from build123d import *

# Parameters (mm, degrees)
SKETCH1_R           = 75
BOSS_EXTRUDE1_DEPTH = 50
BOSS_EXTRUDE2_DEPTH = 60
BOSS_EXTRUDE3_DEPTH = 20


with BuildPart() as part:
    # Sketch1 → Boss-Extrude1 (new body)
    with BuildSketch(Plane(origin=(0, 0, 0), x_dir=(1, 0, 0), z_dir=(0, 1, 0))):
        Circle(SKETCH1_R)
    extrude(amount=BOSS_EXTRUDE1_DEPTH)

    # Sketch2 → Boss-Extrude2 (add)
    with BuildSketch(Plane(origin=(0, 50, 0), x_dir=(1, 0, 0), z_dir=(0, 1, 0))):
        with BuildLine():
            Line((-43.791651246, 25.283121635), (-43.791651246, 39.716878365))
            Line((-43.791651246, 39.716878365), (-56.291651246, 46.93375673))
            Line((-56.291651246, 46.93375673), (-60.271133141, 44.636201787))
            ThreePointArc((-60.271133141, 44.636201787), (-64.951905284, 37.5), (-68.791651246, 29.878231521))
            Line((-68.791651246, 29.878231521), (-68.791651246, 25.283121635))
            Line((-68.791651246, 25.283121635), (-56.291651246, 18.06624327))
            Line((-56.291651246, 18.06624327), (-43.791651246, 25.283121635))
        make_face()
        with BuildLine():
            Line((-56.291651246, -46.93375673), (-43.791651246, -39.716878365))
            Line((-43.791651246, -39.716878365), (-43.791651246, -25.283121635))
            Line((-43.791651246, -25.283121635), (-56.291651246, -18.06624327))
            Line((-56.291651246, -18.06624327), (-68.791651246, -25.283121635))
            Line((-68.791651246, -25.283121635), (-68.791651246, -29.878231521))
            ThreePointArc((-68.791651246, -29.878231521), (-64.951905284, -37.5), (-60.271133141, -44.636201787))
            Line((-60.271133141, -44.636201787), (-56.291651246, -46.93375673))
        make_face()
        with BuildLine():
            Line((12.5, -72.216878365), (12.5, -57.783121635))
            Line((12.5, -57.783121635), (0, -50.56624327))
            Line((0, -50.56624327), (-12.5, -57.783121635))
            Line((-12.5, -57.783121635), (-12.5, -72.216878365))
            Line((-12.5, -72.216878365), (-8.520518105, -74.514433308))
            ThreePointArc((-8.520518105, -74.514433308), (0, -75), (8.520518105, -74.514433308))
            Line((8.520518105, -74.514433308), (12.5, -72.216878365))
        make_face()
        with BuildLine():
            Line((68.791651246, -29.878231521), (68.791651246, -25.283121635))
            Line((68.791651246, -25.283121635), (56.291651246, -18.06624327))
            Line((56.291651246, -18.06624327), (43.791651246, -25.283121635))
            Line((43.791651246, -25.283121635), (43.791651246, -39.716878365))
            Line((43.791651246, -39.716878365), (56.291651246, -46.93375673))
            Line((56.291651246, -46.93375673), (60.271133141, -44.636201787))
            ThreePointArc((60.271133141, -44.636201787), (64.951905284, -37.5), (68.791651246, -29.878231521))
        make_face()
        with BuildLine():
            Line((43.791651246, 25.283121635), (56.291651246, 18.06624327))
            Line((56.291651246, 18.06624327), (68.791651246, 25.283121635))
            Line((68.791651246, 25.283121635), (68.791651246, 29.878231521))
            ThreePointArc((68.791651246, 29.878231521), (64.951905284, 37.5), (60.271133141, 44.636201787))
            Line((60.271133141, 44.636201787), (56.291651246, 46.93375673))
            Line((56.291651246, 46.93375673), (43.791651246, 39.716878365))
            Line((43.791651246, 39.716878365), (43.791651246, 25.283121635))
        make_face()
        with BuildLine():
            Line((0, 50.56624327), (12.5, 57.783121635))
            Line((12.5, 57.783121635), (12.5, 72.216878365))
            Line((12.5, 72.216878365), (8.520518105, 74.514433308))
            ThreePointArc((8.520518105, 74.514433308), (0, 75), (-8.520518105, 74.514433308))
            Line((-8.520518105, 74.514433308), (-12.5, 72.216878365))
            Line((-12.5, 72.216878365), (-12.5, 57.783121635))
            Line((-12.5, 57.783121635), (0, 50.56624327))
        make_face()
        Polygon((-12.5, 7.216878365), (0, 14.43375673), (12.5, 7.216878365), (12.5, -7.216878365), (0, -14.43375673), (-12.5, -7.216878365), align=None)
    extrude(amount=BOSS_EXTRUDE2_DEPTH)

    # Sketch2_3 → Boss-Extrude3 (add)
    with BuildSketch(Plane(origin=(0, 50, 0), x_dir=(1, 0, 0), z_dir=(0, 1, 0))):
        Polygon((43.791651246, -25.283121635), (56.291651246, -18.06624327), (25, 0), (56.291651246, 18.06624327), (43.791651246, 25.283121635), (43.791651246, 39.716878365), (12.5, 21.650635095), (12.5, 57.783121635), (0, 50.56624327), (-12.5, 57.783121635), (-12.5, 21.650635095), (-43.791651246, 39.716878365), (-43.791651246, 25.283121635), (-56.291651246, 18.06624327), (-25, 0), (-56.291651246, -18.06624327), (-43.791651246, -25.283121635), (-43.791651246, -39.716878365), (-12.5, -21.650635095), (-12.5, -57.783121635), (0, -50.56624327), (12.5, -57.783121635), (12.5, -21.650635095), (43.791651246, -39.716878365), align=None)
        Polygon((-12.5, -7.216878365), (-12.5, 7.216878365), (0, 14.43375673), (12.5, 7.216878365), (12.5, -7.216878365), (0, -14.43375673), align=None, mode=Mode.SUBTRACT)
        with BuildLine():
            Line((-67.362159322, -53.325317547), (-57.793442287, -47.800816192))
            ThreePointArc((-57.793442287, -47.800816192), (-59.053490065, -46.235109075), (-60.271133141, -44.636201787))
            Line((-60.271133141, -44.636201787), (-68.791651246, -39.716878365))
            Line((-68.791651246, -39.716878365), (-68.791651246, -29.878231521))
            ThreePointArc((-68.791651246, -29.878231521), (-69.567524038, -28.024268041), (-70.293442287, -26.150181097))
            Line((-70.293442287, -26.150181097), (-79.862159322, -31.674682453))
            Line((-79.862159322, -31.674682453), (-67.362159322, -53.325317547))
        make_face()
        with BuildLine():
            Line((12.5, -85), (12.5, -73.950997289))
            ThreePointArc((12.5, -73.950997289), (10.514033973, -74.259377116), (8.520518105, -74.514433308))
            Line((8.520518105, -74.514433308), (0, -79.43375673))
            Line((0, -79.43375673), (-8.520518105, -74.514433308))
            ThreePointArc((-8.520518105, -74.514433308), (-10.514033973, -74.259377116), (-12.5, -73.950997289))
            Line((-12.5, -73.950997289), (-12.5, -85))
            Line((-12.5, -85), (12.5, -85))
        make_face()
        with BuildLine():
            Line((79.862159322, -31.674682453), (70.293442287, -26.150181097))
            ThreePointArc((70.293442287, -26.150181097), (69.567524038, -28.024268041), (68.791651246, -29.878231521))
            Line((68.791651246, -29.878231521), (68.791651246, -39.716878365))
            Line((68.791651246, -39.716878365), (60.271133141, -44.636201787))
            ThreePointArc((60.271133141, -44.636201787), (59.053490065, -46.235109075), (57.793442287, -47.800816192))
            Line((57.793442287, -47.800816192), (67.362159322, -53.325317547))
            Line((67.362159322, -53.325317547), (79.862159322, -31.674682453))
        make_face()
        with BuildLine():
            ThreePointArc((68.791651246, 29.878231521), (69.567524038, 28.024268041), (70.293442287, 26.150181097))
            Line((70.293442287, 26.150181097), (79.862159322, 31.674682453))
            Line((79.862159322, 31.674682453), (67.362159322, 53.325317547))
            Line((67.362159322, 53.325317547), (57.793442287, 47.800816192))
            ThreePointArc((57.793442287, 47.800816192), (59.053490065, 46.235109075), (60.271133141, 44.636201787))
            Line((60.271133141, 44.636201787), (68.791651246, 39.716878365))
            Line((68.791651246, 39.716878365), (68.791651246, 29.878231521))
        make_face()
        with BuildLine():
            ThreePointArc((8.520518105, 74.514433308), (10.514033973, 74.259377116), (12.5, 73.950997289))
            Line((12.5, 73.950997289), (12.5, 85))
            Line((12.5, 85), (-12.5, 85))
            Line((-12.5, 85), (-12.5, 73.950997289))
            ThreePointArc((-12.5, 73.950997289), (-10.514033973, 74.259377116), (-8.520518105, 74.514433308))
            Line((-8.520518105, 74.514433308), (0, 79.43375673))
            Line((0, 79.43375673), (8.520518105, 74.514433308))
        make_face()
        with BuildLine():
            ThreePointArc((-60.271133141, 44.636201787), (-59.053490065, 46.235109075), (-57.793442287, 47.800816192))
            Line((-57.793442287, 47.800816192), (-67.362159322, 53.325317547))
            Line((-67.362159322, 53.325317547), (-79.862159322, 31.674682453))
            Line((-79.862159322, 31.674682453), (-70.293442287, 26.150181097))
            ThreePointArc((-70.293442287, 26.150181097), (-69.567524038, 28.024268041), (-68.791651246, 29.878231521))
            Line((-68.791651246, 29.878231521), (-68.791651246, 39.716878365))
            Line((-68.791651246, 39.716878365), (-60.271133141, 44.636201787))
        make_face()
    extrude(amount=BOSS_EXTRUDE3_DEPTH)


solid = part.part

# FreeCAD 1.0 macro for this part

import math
import FreeCAD as App
import Part
import Sketcher

V = App.Vector
Q = App.Units.Quantity


def add_polygon(sketch, points):
    """Adds a closed chain of lines whose ends are joined by coincident constraints."""
    first, n = sketch.GeometryCount, len(points)
    for a, b in zip(points, points[1:] + points[:1]):
        sketch.addGeometry(Part.LineSegment(App.Vector(*a, 0), App.Vector(*b, 0)), False)
    for i in range(n):
        sketch.addConstraint(Sketcher.Constraint("Coincident", first + i, 2, first + (i + 1) % n, 1))

doc = App.newDocument("Part")
body = doc.addObject("PartDesign::Body", "Body")
body.AllowCompound = True

sketch1 = doc.addObject("Sketcher::SketchObject", "Sketch")
body.addObject(sketch1)
sketch1.AttachmentSupport = (doc.XZ_Plane, [""])
sketch1.MapMode = "FlatFace"
sketch1.addGeometry(Part.Circle(V(0, 0, 0), V(0, 0, 1), 75), False)
sketch1.addConstraint(Sketcher.Constraint("Coincident", 0, 3, -1, 1))
sketch1.addConstraint(Sketcher.Constraint("Diameter", 0, 150.0))
pad1 = doc.addObject("PartDesign::Pad", "Pad")
body.addObject(pad1)
pad1.Profile = sketch1
pad1.Length = 50
pad1.Reversed = True

sketch2 = doc.addObject("Sketcher::SketchObject", "Sketch001")
body.addObject(sketch2)
sketch2.AttachmentSupport = (doc.XZ_Plane, [""])
sketch2.MapMode = "FlatFace"
sketch2.AttachmentOffset = App.Placement(V(0, 0, -50), App.Rotation())
sketch2.addGeometry(Part.LineSegment(V(-43.8, -25.3, 0), V(-43.8, -39.7, 0)), False)
sketch2.addGeometry(Part.LineSegment(V(-43.8, -39.7, 0), V(-56.3, -46.9, 0)), False)
sketch2.addGeometry(Part.LineSegment(V(-56.3, -46.9, 0), V(-60.3, -44.6, 0)), False)
sketch2.addGeometry(Part.ArcOfCircle(Part.Circle(V(0, 0, 0), V(0, 0, 1), 75), math.radians(-156.52), math.radians(-143.48)), False)
sketch2.addGeometry(Part.LineSegment(V(-68.8, -29.9, 0), V(-68.8, -25.3, 0)), False)
sketch2.addGeometry(Part.LineSegment(V(-68.8, -25.3, 0), V(-56.3, -18.1, 0)), False)
sketch2.addGeometry(Part.LineSegment(V(-56.3, -18.1, 0), V(-43.8, -25.3, 0)), False)
sketch2.addGeometry(Part.LineSegment(V(-56.3, 46.9, 0), V(-43.8, 39.7, 0)), False)
sketch2.addGeometry(Part.LineSegment(V(-43.8, 39.7, 0), V(-43.8, 25.3, 0)), False)
sketch2.addGeometry(Part.LineSegment(V(-43.8, 25.3, 0), V(-56.3, 18.1, 0)), False)
sketch2.addGeometry(Part.LineSegment(V(-56.3, 18.1, 0), V(-68.8, 25.3, 0)), False)
sketch2.addGeometry(Part.LineSegment(V(-68.8, 25.3, 0), V(-68.8, 29.9, 0)), False)
sketch2.addGeometry(Part.ArcOfCircle(Part.Circle(V(0, 0, 0), V(0, 0, 1), 75), math.radians(143.48), math.radians(156.52)), False)
sketch2.addGeometry(Part.LineSegment(V(-60.3, 44.6, 0), V(-56.3, 46.9, 0)), False)
sketch2.addGeometry(Part.LineSegment(V(12.5, 72.2, 0), V(12.5, 57.8, 0)), False)
sketch2.addGeometry(Part.LineSegment(V(12.5, 57.8, 0), V(0, 50.6, 0)), False)
sketch2.addGeometry(Part.LineSegment(V(0, 50.6, 0), V(-12.5, 57.8, 0)), False)
sketch2.addGeometry(Part.LineSegment(V(-12.5, 57.8, 0), V(-12.5, 72.2, 0)), False)
sketch2.addGeometry(Part.LineSegment(V(-12.5, 72.2, 0), V(-8.5, 74.5, 0)), False)
sketch2.addGeometry(Part.ArcOfCircle(Part.Circle(V(0, 0, 0), V(0, 0, 1), 75), math.radians(83.48), math.radians(96.52)), False)
sketch2.addGeometry(Part.LineSegment(V(8.5, 74.5, 0), V(12.5, 72.2, 0)), False)
sketch2.addGeometry(Part.LineSegment(V(68.8, 29.9, 0), V(68.8, 25.3, 0)), False)
sketch2.addGeometry(Part.LineSegment(V(68.8, 25.3, 0), V(56.3, 18.1, 0)), False)
sketch2.addGeometry(Part.LineSegment(V(56.3, 18.1, 0), V(43.8, 25.3, 0)), False)
sketch2.addGeometry(Part.LineSegment(V(43.8, 25.3, 0), V(43.8, 39.7, 0)), False)
sketch2.addGeometry(Part.LineSegment(V(43.8, 39.7, 0), V(56.3, 46.9, 0)), False)
sketch2.addGeometry(Part.LineSegment(V(56.3, 46.9, 0), V(60.3, 44.6, 0)), False)
sketch2.addGeometry(Part.ArcOfCircle(Part.Circle(V(0, 0, 0), V(0, 0, 1), 75), math.radians(23.48), math.radians(36.52)), False)
sketch2.addGeometry(Part.LineSegment(V(43.8, -25.3, 0), V(56.3, -18.1, 0)), False)
sketch2.addGeometry(Part.LineSegment(V(56.3, -18.1, 0), V(68.8, -25.3, 0)), False)
sketch2.addGeometry(Part.LineSegment(V(68.8, -25.3, 0), V(68.8, -29.9, 0)), False)
sketch2.addGeometry(Part.ArcOfCircle(Part.Circle(V(0, 0, 0), V(0, 0, 1), 75), math.radians(-36.52), math.radians(-23.48)), False)
sketch2.addGeometry(Part.LineSegment(V(60.3, -44.6, 0), V(56.3, -46.9, 0)), False)
sketch2.addGeometry(Part.LineSegment(V(56.3, -46.9, 0), V(43.8, -39.7, 0)), False)
sketch2.addGeometry(Part.LineSegment(V(43.8, -39.7, 0), V(43.8, -25.3, 0)), False)
sketch2.addGeometry(Part.LineSegment(V(0, -50.6, 0), V(12.5, -57.8, 0)), False)
sketch2.addGeometry(Part.LineSegment(V(12.5, -57.8, 0), V(12.5, -72.2, 0)), False)
sketch2.addGeometry(Part.LineSegment(V(12.5, -72.2, 0), V(8.5, -74.5, 0)), False)
sketch2.addGeometry(Part.ArcOfCircle(Part.Circle(V(0, 0, 0), V(0, 0, 1), 75), math.radians(-96.52), math.radians(-83.48)), False)
sketch2.addGeometry(Part.LineSegment(V(-8.5, -74.5, 0), V(-12.5, -72.2, 0)), False)
sketch2.addGeometry(Part.LineSegment(V(-12.5, -72.2, 0), V(-12.5, -57.8, 0)), False)
sketch2.addGeometry(Part.LineSegment(V(-12.5, -57.8, 0), V(0, -50.6, 0)), False)
add_polygon(sketch2, [(0, -14.4), (-12.5, -7.2), (-12.5, 7.2), (0, 14.4), (12.5, 7.2), (12.5, -7.2)])
sketch2.addConstraint(Sketcher.Constraint("Coincident", 0, 2, 1, 1))
sketch2.addConstraint(Sketcher.Constraint("Coincident", 1, 2, 2, 1))
sketch2.addConstraint(Sketcher.Constraint("Coincident", 2, 2, 3, 2))
sketch2.addConstraint(Sketcher.Constraint("Coincident", 3, 1, 4, 1))
sketch2.addConstraint(Sketcher.Constraint("Coincident", 4, 2, 5, 1))
sketch2.addConstraint(Sketcher.Constraint("Coincident", 5, 2, 6, 1))
sketch2.addConstraint(Sketcher.Constraint("Coincident", 6, 2, 0, 1))
sketch2.addConstraint(Sketcher.Constraint("Coincident", 7, 2, 8, 1))
sketch2.addConstraint(Sketcher.Constraint("Coincident", 8, 2, 9, 1))
sketch2.addConstraint(Sketcher.Constraint("Coincident", 9, 2, 10, 1))
sketch2.addConstraint(Sketcher.Constraint("Coincident", 10, 2, 11, 1))
sketch2.addConstraint(Sketcher.Constraint("Coincident", 11, 2, 12, 2))
sketch2.addConstraint(Sketcher.Constraint("Coincident", 12, 1, 13, 1))
sketch2.addConstraint(Sketcher.Constraint("Coincident", 13, 2, 7, 1))
sketch2.addConstraint(Sketcher.Constraint("Coincident", 14, 2, 15, 1))
sketch2.addConstraint(Sketcher.Constraint("Coincident", 15, 2, 16, 1))
sketch2.addConstraint(Sketcher.Constraint("Coincident", 16, 2, 17, 1))
sketch2.addConstraint(Sketcher.Constraint("Coincident", 17, 2, 18, 1))
sketch2.addConstraint(Sketcher.Constraint("Coincident", 18, 2, 19, 2))
sketch2.addConstraint(Sketcher.Constraint("Coincident", 19, 1, 20, 1))
sketch2.addConstraint(Sketcher.Constraint("Coincident", 20, 2, 14, 1))
sketch2.addConstraint(Sketcher.Constraint("Coincident", 21, 2, 22, 1))
sketch2.addConstraint(Sketcher.Constraint("Coincident", 22, 2, 23, 1))
sketch2.addConstraint(Sketcher.Constraint("Coincident", 23, 2, 24, 1))
sketch2.addConstraint(Sketcher.Constraint("Coincident", 24, 2, 25, 1))
sketch2.addConstraint(Sketcher.Constraint("Coincident", 25, 2, 26, 1))
sketch2.addConstraint(Sketcher.Constraint("Coincident", 26, 2, 27, 2))
sketch2.addConstraint(Sketcher.Constraint("Coincident", 27, 1, 21, 1))
sketch2.addConstraint(Sketcher.Constraint("Coincident", 28, 2, 29, 1))
sketch2.addConstraint(Sketcher.Constraint("Coincident", 29, 2, 30, 1))
sketch2.addConstraint(Sketcher.Constraint("Coincident", 30, 2, 31, 2))
sketch2.addConstraint(Sketcher.Constraint("Coincident", 31, 1, 32, 1))
sketch2.addConstraint(Sketcher.Constraint("Coincident", 32, 2, 33, 1))
sketch2.addConstraint(Sketcher.Constraint("Coincident", 33, 2, 34, 1))
sketch2.addConstraint(Sketcher.Constraint("Coincident", 34, 2, 28, 1))
sketch2.addConstraint(Sketcher.Constraint("Coincident", 35, 2, 36, 1))
sketch2.addConstraint(Sketcher.Constraint("Coincident", 36, 2, 37, 1))
sketch2.addConstraint(Sketcher.Constraint("Coincident", 37, 2, 38, 2))
sketch2.addConstraint(Sketcher.Constraint("Coincident", 38, 1, 39, 1))
sketch2.addConstraint(Sketcher.Constraint("Coincident", 39, 2, 40, 1))
sketch2.addConstraint(Sketcher.Constraint("Coincident", 40, 2, 41, 1))
sketch2.addConstraint(Sketcher.Constraint("Coincident", 41, 2, 35, 1))
sketch2.addConstraint(Sketcher.Constraint("Vertical", 0))
sketch2.addConstraint(Sketcher.Constraint("Vertical", 4))
sketch2.addConstraint(Sketcher.Constraint("Vertical", 8))
sketch2.addConstraint(Sketcher.Constraint("Vertical", 11))
sketch2.addConstraint(Sketcher.Constraint("Vertical", 14))
sketch2.addConstraint(Sketcher.Constraint("Vertical", 17))
sketch2.addConstraint(Sketcher.Constraint("Vertical", 21))
sketch2.addConstraint(Sketcher.Constraint("Vertical", 24))
sketch2.addConstraint(Sketcher.Constraint("Vertical", 30))
sketch2.addConstraint(Sketcher.Constraint("Vertical", 34))
sketch2.addConstraint(Sketcher.Constraint("Vertical", 36))
sketch2.addConstraint(Sketcher.Constraint("Vertical", 40))
sketch2.addConstraint(Sketcher.Constraint("Vertical", 43))
sketch2.addConstraint(Sketcher.Constraint("Vertical", 46))
sketch2.addConstraint(Sketcher.Constraint("Coincident", 3, 3, -1, 1))
sketch2.addConstraint(Sketcher.Constraint("Coincident", 12, 3, -1, 1))
sketch2.addConstraint(Sketcher.Constraint("Coincident", 19, 3, -1, 1))
sketch2.addConstraint(Sketcher.Constraint("Coincident", 27, 3, -1, 1))
sketch2.addConstraint(Sketcher.Constraint("Coincident", 31, 3, -1, 1))
sketch2.addConstraint(Sketcher.Constraint("Coincident", 38, 3, -1, 1))
sketch2.addConstraint(Sketcher.Constraint("Equal", 3, 12))
sketch2.addConstraint(Sketcher.Constraint("Equal", 12, 19))
sketch2.addConstraint(Sketcher.Constraint("Equal", 19, 27))
sketch2.addConstraint(Sketcher.Constraint("Equal", 27, 31))
sketch2.addConstraint(Sketcher.Constraint("Equal", 31, 38))
sketch2.addConstraint(Sketcher.Constraint("Symmetric", 4, 2, 21, 2, -1, 1))
sketch2.addConstraint(Sketcher.Constraint("Symmetric", 5, 2, 22, 2, -1, 1))
sketch2.addConstraint(Sketcher.Constraint("Symmetric", 6, 2, 23, 2, -1, 1))
sketch2.addConstraint(Sketcher.Constraint("Symmetric", 1, 2, 25, 2, -1, 1))
sketch2.addConstraint(Sketcher.Constraint("Symmetric", 9, 2, 28, 2, -1, 1))
sketch2.addConstraint(Sketcher.Constraint("Symmetric", 10, 2, 29, 2, -1, 1))
sketch2.addConstraint(Sketcher.Constraint("Symmetric", 13, 2, 32, 2, -1, 1))
sketch2.addConstraint(Sketcher.Constraint("Symmetric", 7, 2, 33, 2, -1, 1))
sketch2.addConstraint(Sketcher.Constraint("Symmetric", 16, 2, 35, 2, -1, 1))
sketch2.addConstraint(Sketcher.Constraint("Symmetric", 20, 2, 39, 2, -1, 1))
sketch2.addConstraint(Sketcher.Constraint("Symmetric", 15, 2, 41, 2, -1, 1))
sketch2.addConstraint(Sketcher.Constraint("Symmetric", 42, 2, 45, 2, -1, 1))
sketch2.addConstraint(Sketcher.Constraint("Symmetric", 44, 2, 47, 2, -1, 1))
sketch2.addConstraint(Sketcher.Constraint("Symmetric", 14, 2, 16, 2, -2))
sketch2.addConstraint(Sketcher.Constraint("Symmetric", 10, 2, 21, 2, -2))
sketch2.addConstraint(Sketcher.Constraint("Symmetric", 9, 2, 22, 2, -2))
sketch2.addConstraint(Sketcher.Constraint("Symmetric", 8, 2, 23, 2, -2))
sketch2.addConstraint(Sketcher.Constraint("Symmetric", 13, 2, 25, 2, -2))
sketch2.addConstraint(Sketcher.Constraint("PointOnObject", 15, 2, -2))
sketch2.addConstraint(Sketcher.Constraint("PointOnObject", 44, 2, -2))
sketch2.addConstraint(Sketcher.Constraint("Parallel", 1, 5))
sketch2.addConstraint(Sketcher.Constraint("Parallel", 2, 6))
sketch2.addConstraint(Sketcher.Constraint("Parallel", 6, 7))
sketch2.addConstraint(Sketcher.Constraint("Parallel", 5, 9))
sketch2.addConstraint(Sketcher.Constraint("Parallel", 9, 13))
sketch2.addConstraint(Sketcher.Constraint("Parallel", 13, 15))
sketch2.addConstraint(Sketcher.Constraint("Parallel", 15, 18))
sketch2.addConstraint(Sketcher.Constraint("Parallel", 16, 20))
sketch2.addConstraint(Sketcher.Constraint("Parallel", 22, 25))
sketch2.addConstraint(Sketcher.Constraint("Parallel", 23, 26))
sketch2.addConstraint(Sketcher.Constraint("Parallel", 25, 28))
sketch2.addConstraint(Sketcher.Constraint("Parallel", 28, 32))
sketch2.addConstraint(Sketcher.Constraint("Parallel", 32, 37))
sketch2.addConstraint(Sketcher.Constraint("Parallel", 35, 39))
sketch2.addConstraint(Sketcher.Constraint("Parallel", 37, 41))
sketch2.addConstraint(Sketcher.Constraint("Parallel", 39, 42))
sketch2.addConstraint(Sketcher.Constraint("Parallel", 41, 44))
sketch2.addConstraint(Sketcher.Constraint("Parallel", 44, 47))
sketch2.addConstraint(Sketcher.Constraint("Horizontal", 4, 2, 6, 2))
sketch2.addConstraint(Sketcher.Constraint("Horizontal", 18, 2, 19, 1))
sketch2.addConstraint(Sketcher.Constraint("Horizontal", 37, 2, 38, 1))
sketch2.addConstraint(Sketcher.Constraint("Vertical", 1, 2, 5, 2))
sketch2.addConstraint(Sketcher.Constraint("Vertical", 40, 2, 42, 2))
sketch2.addConstraint(Sketcher.Constraint("Equal", 8, 14))
sketch2.addConstraint(Sketcher.Constraint("Equal", 40, 43))
sketch2.addConstraint(Sketcher.Constraint("Equal", 10, 15))
sketch2.addConstraint(Sketcher.Constraint("Equal", 13, 18))
sketch2.addConstraint(Sketcher.Constraint("Radius", 3, 75.0))
sketch2.addConstraint(Sketcher.Constraint("Angle", 1, Q("-150 deg")))
sketch2.addConstraint(Sketcher.Constraint("DistanceX", 3, 1, 0, 2, 25.0))
sketch2.addConstraint(Sketcher.Constraint("DistanceY", 32, 2, 22, 2, 65.0))
sketch2.addConstraint(Sketcher.Constraint("DistanceY", 8, 2, 16, 2, 32.5))
sketch2.addConstraint(Sketcher.Constraint("DistanceY", 4, 1, 4, 2, 4.59511))
pad2 = doc.addObject("PartDesign::Pad", "Pad001")
body.addObject(pad2)
pad2.Profile = sketch2
pad2.Length = 60
pad2.Reversed = True

sketch3 = doc.addObject("Sketcher::SketchObject", "Sketch002")
body.addObject(sketch3)
sketch3.AttachmentSupport = (doc.XZ_Plane, [""])
sketch3.MapMode = "FlatFace"
sketch3.AttachmentOffset = App.Placement(V(0, 0, -50), App.Rotation())
add_polygon(sketch3, [(43.8, 25.3), (56.3, 18.1), (25, 0), (56.3, -18.1), (43.8, -25.3), (43.8, -39.7), (12.5, -21.7), (12.5, -57.8), (0, -50.6), (-12.5, -57.8), (-12.5, -21.7), (-43.8, -39.7), (-43.8, -25.3), (-56.3, -18.1), (-25, 0), (-56.3, 18.1), (-43.8, 25.3), (-43.8, 39.7), (-12.5, 21.7), (-12.5, 57.8), (0, 50.6), (12.5, 57.8), (12.5, 21.7), (43.8, 39.7)])
add_polygon(sketch3, [(0, 14.4), (-12.5, 7.2), (-12.5, -7.2), (0, -14.4), (12.5, -7.2), (12.5, 7.2)])
sketch3.addGeometry(Part.LineSegment(V(-67.4, 53.3, 0), V(-57.8, 47.8, 0)), False)
sketch3.addGeometry(Part.ArcOfCircle(Part.Circle(V(0, 0, 0), V(0, 0, 1), 75), math.radians(140.41), math.radians(143.48)), False)
sketch3.addGeometry(Part.LineSegment(V(-60.3, 44.6, 0), V(-68.8, 39.7, 0)), False)
sketch3.addGeometry(Part.LineSegment(V(-68.8, 39.7, 0), V(-68.8, 29.9, 0)), False)
sketch3.addGeometry(Part.ArcOfCircle(Part.Circle(V(0, 0, 0), V(0, 0, 1), 75), math.radians(156.52), math.radians(159.59)), False)
sketch3.addGeometry(Part.LineSegment(V(-70.3, 26.2, 0), V(-79.9, 31.7, 0)), False)
sketch3.addGeometry(Part.LineSegment(V(-79.9, 31.7, 0), V(-67.4, 53.3, 0)), False)
sketch3.addGeometry(Part.LineSegment(V(12.5, 85, 0), V(12.5, 74, 0)), False)
sketch3.addGeometry(Part.ArcOfCircle(Part.Circle(V(0, 0, 0), V(0, 0, 1), 75), math.radians(80.41), math.radians(83.48)), False)
sketch3.addGeometry(Part.LineSegment(V(8.5, 74.5, 0), V(0, 79.4, 0)), False)
sketch3.addGeometry(Part.LineSegment(V(0, 79.4, 0), V(-8.5, 74.5, 0)), False)
sketch3.addGeometry(Part.ArcOfCircle(Part.Circle(V(0, 0, 0), V(0, 0, 1), 75), math.radians(96.52), math.radians(99.59)), False)
sketch3.addGeometry(Part.LineSegment(V(-12.5, 74, 0), V(-12.5, 85, 0)), False)
sketch3.addGeometry(Part.LineSegment(V(-12.5, 85, 0), V(12.5, 85, 0)), False)
sketch3.addGeometry(Part.LineSegment(V(79.9, 31.7, 0), V(70.3, 26.2, 0)), False)
sketch3.addGeometry(Part.ArcOfCircle(Part.Circle(V(0, 0, 0), V(0, 0, 1), 75), math.radians(20.41), math.radians(23.48)), False)
sketch3.addGeometry(Part.LineSegment(V(68.8, 29.9, 0), V(68.8, 39.7, 0)), False)
sketch3.addGeometry(Part.LineSegment(V(68.8, 39.7, 0), V(60.3, 44.6, 0)), False)
sketch3.addGeometry(Part.ArcOfCircle(Part.Circle(V(0, 0, 0), V(0, 0, 1), 75), math.radians(36.52), math.radians(39.59)), False)
sketch3.addGeometry(Part.LineSegment(V(57.8, 47.8, 0), V(67.4, 53.3, 0)), False)
sketch3.addGeometry(Part.LineSegment(V(67.4, 53.3, 0), V(79.9, 31.7, 0)), False)
sketch3.addGeometry(Part.ArcOfCircle(Part.Circle(V(0, 0, 0), V(0, 0, 1), 75), math.radians(-23.48), math.radians(-20.41)), False)
sketch3.addGeometry(Part.LineSegment(V(70.3, -26.2, 0), V(79.9, -31.7, 0)), False)
sketch3.addGeometry(Part.LineSegment(V(79.9, -31.7, 0), V(67.4, -53.3, 0)), False)
sketch3.addGeometry(Part.LineSegment(V(67.4, -53.3, 0), V(57.8, -47.8, 0)), False)
sketch3.addGeometry(Part.ArcOfCircle(Part.Circle(V(0, 0, 0), V(0, 0, 1), 75), math.radians(-39.59), math.radians(-36.52)), False)
sketch3.addGeometry(Part.LineSegment(V(60.3, -44.6, 0), V(68.8, -39.7, 0)), False)
sketch3.addGeometry(Part.LineSegment(V(68.8, -39.7, 0), V(68.8, -29.9, 0)), False)
sketch3.addGeometry(Part.ArcOfCircle(Part.Circle(V(0, 0, 0), V(0, 0, 1), 75), math.radians(-83.48), math.radians(-80.41)), False)
sketch3.addGeometry(Part.LineSegment(V(12.5, -74, 0), V(12.5, -85, 0)), False)
sketch3.addGeometry(Part.LineSegment(V(12.5, -85, 0), V(-12.5, -85, 0)), False)
sketch3.addGeometry(Part.LineSegment(V(-12.5, -85, 0), V(-12.5, -74, 0)), False)
sketch3.addGeometry(Part.ArcOfCircle(Part.Circle(V(0, 0, 0), V(0, 0, 1), 75), math.radians(-99.59), math.radians(-96.52)), False)
sketch3.addGeometry(Part.LineSegment(V(-8.5, -74.5, 0), V(0, -79.4, 0)), False)
sketch3.addGeometry(Part.LineSegment(V(0, -79.4, 0), V(8.5, -74.5, 0)), False)
sketch3.addGeometry(Part.ArcOfCircle(Part.Circle(V(0, 0, 0), V(0, 0, 1), 75), math.radians(-143.48), math.radians(-140.41)), False)
sketch3.addGeometry(Part.LineSegment(V(-57.8, -47.8, 0), V(-67.4, -53.3, 0)), False)
sketch3.addGeometry(Part.LineSegment(V(-67.4, -53.3, 0), V(-79.9, -31.7, 0)), False)
sketch3.addGeometry(Part.LineSegment(V(-79.9, -31.7, 0), V(-70.3, -26.2, 0)), False)
sketch3.addGeometry(Part.ArcOfCircle(Part.Circle(V(0, 0, 0), V(0, 0, 1), 75), math.radians(-159.59), math.radians(-156.52)), False)
sketch3.addGeometry(Part.LineSegment(V(-68.8, -29.9, 0), V(-68.8, -39.7, 0)), False)
sketch3.addGeometry(Part.LineSegment(V(-68.8, -39.7, 0), V(-60.3, -44.6, 0)), False)
sketch3.addConstraint(Sketcher.Constraint("Coincident", 30, 2, 31, 1))
sketch3.addConstraint(Sketcher.Constraint("Coincident", 31, 2, 32, 1))
sketch3.addConstraint(Sketcher.Constraint("Coincident", 32, 2, 33, 1))
sketch3.addConstraint(Sketcher.Constraint("Coincident", 33, 2, 34, 1))
sketch3.addConstraint(Sketcher.Constraint("Coincident", 34, 2, 35, 1))
sketch3.addConstraint(Sketcher.Constraint("Coincident", 35, 2, 36, 1))
sketch3.addConstraint(Sketcher.Constraint("Coincident", 36, 2, 30, 1))
sketch3.addConstraint(Sketcher.Constraint("Coincident", 37, 2, 38, 1))
sketch3.addConstraint(Sketcher.Constraint("Coincident", 38, 2, 39, 1))
sketch3.addConstraint(Sketcher.Constraint("Coincident", 39, 2, 40, 1))
sketch3.addConstraint(Sketcher.Constraint("Coincident", 40, 2, 41, 1))
sketch3.addConstraint(Sketcher.Constraint("Coincident", 41, 2, 42, 1))
sketch3.addConstraint(Sketcher.Constraint("Coincident", 42, 2, 43, 1))
sketch3.addConstraint(Sketcher.Constraint("Coincident", 43, 2, 37, 1))
sketch3.addConstraint(Sketcher.Constraint("Coincident", 44, 2, 45, 1))
sketch3.addConstraint(Sketcher.Constraint("Coincident", 45, 2, 46, 1))
sketch3.addConstraint(Sketcher.Constraint("Coincident", 46, 2, 47, 1))
sketch3.addConstraint(Sketcher.Constraint("Coincident", 47, 2, 48, 1))
sketch3.addConstraint(Sketcher.Constraint("Coincident", 48, 2, 49, 1))
sketch3.addConstraint(Sketcher.Constraint("Coincident", 49, 2, 50, 1))
sketch3.addConstraint(Sketcher.Constraint("Coincident", 50, 2, 44, 1))
sketch3.addConstraint(Sketcher.Constraint("Coincident", 51, 2, 52, 1))
sketch3.addConstraint(Sketcher.Constraint("Coincident", 52, 2, 53, 1))
sketch3.addConstraint(Sketcher.Constraint("Coincident", 53, 2, 54, 1))
sketch3.addConstraint(Sketcher.Constraint("Coincident", 54, 2, 55, 1))
sketch3.addConstraint(Sketcher.Constraint("Coincident", 55, 2, 56, 1))
sketch3.addConstraint(Sketcher.Constraint("Coincident", 56, 2, 57, 1))
sketch3.addConstraint(Sketcher.Constraint("Coincident", 57, 2, 51, 1))
sketch3.addConstraint(Sketcher.Constraint("Coincident", 58, 2, 59, 1))
sketch3.addConstraint(Sketcher.Constraint("Coincident", 59, 2, 60, 1))
sketch3.addConstraint(Sketcher.Constraint("Coincident", 60, 2, 61, 1))
sketch3.addConstraint(Sketcher.Constraint("Coincident", 61, 2, 62, 1))
sketch3.addConstraint(Sketcher.Constraint("Coincident", 62, 2, 63, 1))
sketch3.addConstraint(Sketcher.Constraint("Coincident", 63, 2, 64, 1))
sketch3.addConstraint(Sketcher.Constraint("Coincident", 64, 2, 58, 1))
sketch3.addConstraint(Sketcher.Constraint("Coincident", 65, 2, 66, 1))
sketch3.addConstraint(Sketcher.Constraint("Coincident", 66, 2, 67, 1))
sketch3.addConstraint(Sketcher.Constraint("Coincident", 67, 2, 68, 1))
sketch3.addConstraint(Sketcher.Constraint("Coincident", 68, 2, 69, 1))
sketch3.addConstraint(Sketcher.Constraint("Coincident", 69, 2, 70, 1))
sketch3.addConstraint(Sketcher.Constraint("Coincident", 70, 2, 71, 1))
sketch3.addConstraint(Sketcher.Constraint("Coincident", 71, 2, 65, 1))
sketch3.addConstraint(Sketcher.Constraint("Vertical", 4))
sketch3.addConstraint(Sketcher.Constraint("Vertical", 6))
sketch3.addConstraint(Sketcher.Constraint("Vertical", 9))
sketch3.addConstraint(Sketcher.Constraint("Vertical", 11))
sketch3.addConstraint(Sketcher.Constraint("Vertical", 16))
sketch3.addConstraint(Sketcher.Constraint("Vertical", 18))
sketch3.addConstraint(Sketcher.Constraint("Vertical", 21))
sketch3.addConstraint(Sketcher.Constraint("Vertical", 23))
sketch3.addConstraint(Sketcher.Constraint("Vertical", 25))
sketch3.addConstraint(Sketcher.Constraint("Vertical", 28))
sketch3.addConstraint(Sketcher.Constraint("Vertical", 33))
sketch3.addConstraint(Sketcher.Constraint("Vertical", 37))
sketch3.addConstraint(Sketcher.Constraint("Vertical", 42))
sketch3.addConstraint(Sketcher.Constraint("Horizontal", 43))
sketch3.addConstraint(Sketcher.Constraint("Vertical", 46))
sketch3.addConstraint(Sketcher.Constraint("Vertical", 57))
sketch3.addConstraint(Sketcher.Constraint("Vertical", 59))
sketch3.addConstraint(Sketcher.Constraint("Horizontal", 60))
sketch3.addConstraint(Sketcher.Constraint("Vertical", 61))
sketch3.addConstraint(Sketcher.Constraint("Vertical", 70))
sketch3.addConstraint(Sketcher.Constraint("Coincident", 31, 3, -1, 1))
sketch3.addConstraint(Sketcher.Constraint("Coincident", 34, 3, -1, 1))
sketch3.addConstraint(Sketcher.Constraint("Coincident", 38, 3, -1, 1))
sketch3.addConstraint(Sketcher.Constraint("Coincident", 41, 3, -1, 1))
sketch3.addConstraint(Sketcher.Constraint("Coincident", 45, 3, -1, 1))
sketch3.addConstraint(Sketcher.Constraint("Coincident", 48, 3, -1, 1))
sketch3.addConstraint(Sketcher.Constraint("Coincident", 51, 3, -1, 1))
sketch3.addConstraint(Sketcher.Constraint("Coincident", 55, 3, -1, 1))
sketch3.addConstraint(Sketcher.Constraint("Coincident", 58, 3, -1, 1))
sketch3.addConstraint(Sketcher.Constraint("Coincident", 62, 3, -1, 1))
sketch3.addConstraint(Sketcher.Constraint("Coincident", 65, 3, -1, 1))
sketch3.addConstraint(Sketcher.Constraint("Coincident", 69, 3, -1, 1))
sketch3.addConstraint(Sketcher.Constraint("Equal", 31, 34))
sketch3.addConstraint(Sketcher.Constraint("Equal", 34, 38))
sketch3.addConstraint(Sketcher.Constraint("Equal", 38, 41))
sketch3.addConstraint(Sketcher.Constraint("Equal", 41, 45))
sketch3.addConstraint(Sketcher.Constraint("Equal", 45, 48))
sketch3.addConstraint(Sketcher.Constraint("Equal", 48, 51))
sketch3.addConstraint(Sketcher.Constraint("Equal", 51, 55))
sketch3.addConstraint(Sketcher.Constraint("Equal", 55, 58))
sketch3.addConstraint(Sketcher.Constraint("Equal", 58, 62))
sketch3.addConstraint(Sketcher.Constraint("Equal", 62, 65))
sketch3.addConstraint(Sketcher.Constraint("Equal", 65, 69))
sketch3.addConstraint(Sketcher.Constraint("Symmetric", 0, 2, 12, 2, -1, 1))
sketch3.addConstraint(Sketcher.Constraint("Symmetric", 1, 2, 13, 2, -1, 1))
sketch3.addConstraint(Sketcher.Constraint("Symmetric", 2, 2, 14, 2, -1, 1))
sketch3.addConstraint(Sketcher.Constraint("Symmetric", 3, 2, 15, 2, -1, 1))
sketch3.addConstraint(Sketcher.Constraint("Symmetric", 5, 2, 17, 2, -1, 1))
sketch3.addConstraint(Sketcher.Constraint("Symmetric", 7, 2, 19, 2, -1, 1))
sketch3.addConstraint(Sketcher.Constraint("Symmetric", 8, 2, 20, 2, -1, 1))
sketch3.addConstraint(Sketcher.Constraint("Symmetric", 10, 2, 22, 2, -1, 1))
sketch3.addConstraint(Sketcher.Constraint("Symmetric", 24, 2, 27, 2, -1, 1))
sketch3.addConstraint(Sketcher.Constraint("Symmetric", 26, 2, 29, 2, -1, 1))
sketch3.addConstraint(Sketcher.Constraint("Symmetric", 35, 2, 52, 2, -1, 1))
sketch3.addConstraint(Sketcher.Constraint("Symmetric", 36, 2, 53, 2, -1, 1))
sketch3.addConstraint(Sketcher.Constraint("Symmetric", 32, 2, 56, 2, -1, 1))
sketch3.addConstraint(Sketcher.Constraint("Symmetric", 42, 2, 59, 2, -1, 1))
sketch3.addConstraint(Sketcher.Constraint("Symmetric", 39, 2, 63, 2, -1, 1))
sketch3.addConstraint(Sketcher.Constraint("Symmetric", 49, 2, 66, 2, -1, 1))
sketch3.addConstraint(Sketcher.Constraint("Symmetric", 50, 2, 67, 2, -1, 1))
sketch3.addConstraint(Sketcher.Constraint("Symmetric", 46, 2, 70, 2, -1, 1))
sketch3.addConstraint(Sketcher.Constraint("Symmetric", 6, 2, 8, 2, -2))
sketch3.addConstraint(Sketcher.Constraint("Symmetric", 4, 2, 10, 2, -2))
sketch3.addConstraint(Sketcher.Constraint("Symmetric", 2, 2, 12, 2, -2))
sketch3.addConstraint(Sketcher.Constraint("Symmetric", 32, 2, 46, 2, -2))
sketch3.addConstraint(Sketcher.Constraint("Symmetric", 36, 2, 49, 2, -2))
sketch3.addConstraint(Sketcher.Constraint("Symmetric", 35, 2, 50, 2, -2))
sketch3.addConstraint(Sketcher.Constraint("PointOnObject", 1, 2, -1))
sketch3.addConstraint(Sketcher.Constraint("PointOnObject", 7, 2, -2))
sketch3.addConstraint(Sketcher.Constraint("PointOnObject", 26, 2, -2))
sketch3.addConstraint(Sketcher.Constraint("PointOnObject", 39, 2, -2))
sketch3.addConstraint(Sketcher.Constraint("Parallel", 0, 2))
sketch3.addConstraint(Sketcher.Constraint("Parallel", 1, 3))
sketch3.addConstraint(Sketcher.Constraint("Parallel", 2, 5))
sketch3.addConstraint(Sketcher.Constraint("Parallel", 5, 7))
sketch3.addConstraint(Sketcher.Constraint("Parallel", 8, 10))
sketch3.addConstraint(Sketcher.Constraint("Parallel", 7, 12))
sketch3.addConstraint(Sketcher.Constraint("Parallel", 14, 17))
sketch3.addConstraint(Sketcher.Constraint("Parallel", 17, 19))
sketch3.addConstraint(Sketcher.Constraint("Parallel", 20, 22))
sketch3.addConstraint(Sketcher.Constraint("Parallel", 22, 24))
sketch3.addConstraint(Sketcher.Constraint("Parallel", 19, 26))
sketch3.addConstraint(Sketcher.Constraint("Parallel", 26, 29))
sketch3.addConstraint(Sketcher.Constraint("Parallel", 29, 30))
sketch3.addConstraint(Sketcher.Constraint("Parallel", 27, 32))
sketch3.addConstraint(Sketcher.Constraint("Parallel", 30, 35))
sketch3.addConstraint(Sketcher.Constraint("Perpendicular", 35, 36))
sketch3.addConstraint(Sketcher.Constraint("Perpendicular", 36, 39))
sketch3.addConstraint(Sketcher.Constraint("Parallel", 32, 40))
sketch3.addConstraint(Sketcher.Constraint("Parallel", 40, 44))
sketch3.addConstraint(Sketcher.Constraint("Parallel", 39, 47))
sketch3.addConstraint(Sketcher.Constraint("Parallel", 44, 49))
sketch3.addConstraint(Sketcher.Constraint("Parallel", 47, 52))
sketch3.addConstraint(Sketcher.Constraint("Perpendicular", 53, 54))
sketch3.addConstraint(Sketcher.Constraint("Perpendicular", 50, 56))
sketch3.addConstraint(Sketcher.Constraint("Parallel", 54, 63))
sketch3.addConstraint(Sketcher.Constraint("Parallel", 56, 64))
sketch3.addConstraint(Sketcher.Constraint("Parallel", 64, 66))
sketch3.addConstraint(Sketcher.Constraint("Perpendicular", 67, 68))
sketch3.addConstraint(Sketcher.Constraint("Parallel", 63, 71))
sketch3.addConstraint(Sketcher.Constraint("Horizontal", 22, 2, 32, 2))
sketch3.addConstraint(Sketcher.Constraint("Horizontal", 37, 2, 41, 2))
sketch3.addConstraint(Sketcher.Constraint("Horizontal", 58, 2, 61, 2))
sketch3.addConstraint(Sketcher.Constraint("Vertical", 18, 2, 24, 2))
sketch3.addConstraint(Sketcher.Constraint("Vertical", 28, 2, 37, 2))
sketch3.addConstraint(Sketcher.Constraint("Equal", 23, 25))
sketch3.addConstraint(Sketcher.Constraint("Equal", 2, 5))
sketch3.addConstraint(Sketcher.Constraint("Equal", 3, 7))
sketch3.addConstraint(Sketcher.Constraint("Equal", 30, 35))
sketch3.addConstraint(Sketcher.Constraint("Equal", 32, 39))
sketch3.addConstraint(Sketcher.Constraint("Radius", 31, 75.0))
sketch3.addConstraint(Sketcher.Constraint("DistanceX", 43, 1, 43, 2, 25.0))
sketch3.addConstraint(Sketcher.Constraint("Angle", 0, Q("-30 deg")))
sketch3.addConstraint(Sketcher.Constraint("Distance", 36, 25.0))
sketch3.addConstraint(Sketcher.Constraint("DistanceY", -1, 1, 42, 2, 85.0))
sketch3.addConstraint(Sketcher.Constraint("DistanceY", -1, 1, 31, 2, 44.636202))
sketch3.addConstraint(Sketcher.Constraint("DistanceY", 4, 2, 4, 1, 14.433757))
sketch3.addConstraint(Sketcher.Constraint("DistanceY", 6, 2, 6, 1, 36.132487))
sketch3.addConstraint(Sketcher.Constraint("DistanceY", 33, 2, 33, 1, 9.838647))
sketch3.addConstraint(Sketcher.Constraint("DistanceX", 35, 2, -1, 1, 79.862159))
pad3 = doc.addObject("PartDesign::Pad", "Pad002")
body.addObject(pad3)
pad3.Profile = sketch3
pad3.Length = 20
pad3.Reversed = True

doc.recompute()
